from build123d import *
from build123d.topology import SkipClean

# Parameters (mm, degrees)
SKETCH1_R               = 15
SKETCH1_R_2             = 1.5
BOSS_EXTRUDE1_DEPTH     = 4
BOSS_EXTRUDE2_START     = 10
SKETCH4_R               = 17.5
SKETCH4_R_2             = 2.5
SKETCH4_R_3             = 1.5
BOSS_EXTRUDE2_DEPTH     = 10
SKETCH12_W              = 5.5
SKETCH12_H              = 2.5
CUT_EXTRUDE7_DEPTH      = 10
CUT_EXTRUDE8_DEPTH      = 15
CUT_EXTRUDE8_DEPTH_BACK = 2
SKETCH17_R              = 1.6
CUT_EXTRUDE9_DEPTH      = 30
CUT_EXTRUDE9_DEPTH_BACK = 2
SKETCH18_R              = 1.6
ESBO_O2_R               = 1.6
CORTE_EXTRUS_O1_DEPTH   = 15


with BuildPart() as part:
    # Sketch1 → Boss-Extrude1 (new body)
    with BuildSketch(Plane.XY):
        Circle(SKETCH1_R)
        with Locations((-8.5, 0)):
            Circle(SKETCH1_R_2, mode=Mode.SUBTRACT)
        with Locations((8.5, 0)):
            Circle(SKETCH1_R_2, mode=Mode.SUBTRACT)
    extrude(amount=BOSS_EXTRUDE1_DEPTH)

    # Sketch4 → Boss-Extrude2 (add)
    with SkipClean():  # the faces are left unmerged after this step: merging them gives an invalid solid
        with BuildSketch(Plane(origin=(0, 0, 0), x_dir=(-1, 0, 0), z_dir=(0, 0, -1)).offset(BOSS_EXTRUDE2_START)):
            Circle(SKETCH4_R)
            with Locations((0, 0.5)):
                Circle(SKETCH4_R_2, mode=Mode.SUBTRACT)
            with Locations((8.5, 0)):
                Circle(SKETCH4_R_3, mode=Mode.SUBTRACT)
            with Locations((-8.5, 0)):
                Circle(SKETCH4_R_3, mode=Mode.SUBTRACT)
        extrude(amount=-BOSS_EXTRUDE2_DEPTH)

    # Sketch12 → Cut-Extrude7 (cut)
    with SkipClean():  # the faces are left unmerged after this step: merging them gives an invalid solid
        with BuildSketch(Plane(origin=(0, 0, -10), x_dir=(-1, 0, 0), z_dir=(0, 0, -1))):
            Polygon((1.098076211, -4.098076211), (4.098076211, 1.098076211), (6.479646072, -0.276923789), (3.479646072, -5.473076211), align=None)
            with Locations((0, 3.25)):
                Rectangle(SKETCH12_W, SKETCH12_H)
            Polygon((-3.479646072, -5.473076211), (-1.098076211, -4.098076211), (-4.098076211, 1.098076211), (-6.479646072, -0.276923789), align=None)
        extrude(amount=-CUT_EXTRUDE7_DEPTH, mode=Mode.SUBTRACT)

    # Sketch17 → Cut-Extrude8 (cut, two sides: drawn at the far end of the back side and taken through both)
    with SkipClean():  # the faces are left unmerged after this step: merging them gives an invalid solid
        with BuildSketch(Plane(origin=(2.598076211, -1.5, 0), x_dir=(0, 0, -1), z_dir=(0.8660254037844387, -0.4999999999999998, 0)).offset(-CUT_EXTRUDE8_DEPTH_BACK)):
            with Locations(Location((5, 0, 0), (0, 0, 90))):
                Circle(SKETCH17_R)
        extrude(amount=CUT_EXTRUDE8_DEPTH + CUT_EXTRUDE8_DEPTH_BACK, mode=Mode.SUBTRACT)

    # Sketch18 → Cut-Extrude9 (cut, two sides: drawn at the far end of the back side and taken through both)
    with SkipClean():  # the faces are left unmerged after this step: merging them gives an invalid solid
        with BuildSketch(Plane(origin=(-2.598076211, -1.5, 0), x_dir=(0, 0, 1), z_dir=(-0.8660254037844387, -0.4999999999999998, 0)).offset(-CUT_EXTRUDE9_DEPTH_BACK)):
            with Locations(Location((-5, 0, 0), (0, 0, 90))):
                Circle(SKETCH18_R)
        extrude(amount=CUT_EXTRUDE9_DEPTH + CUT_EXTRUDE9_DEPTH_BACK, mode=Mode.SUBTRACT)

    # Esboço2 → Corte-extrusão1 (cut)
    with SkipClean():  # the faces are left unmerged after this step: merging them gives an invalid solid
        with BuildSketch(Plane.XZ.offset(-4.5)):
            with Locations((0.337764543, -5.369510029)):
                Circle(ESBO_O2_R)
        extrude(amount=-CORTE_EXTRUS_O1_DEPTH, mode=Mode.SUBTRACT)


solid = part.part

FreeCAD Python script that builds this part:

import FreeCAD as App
import Part
import Sketcher

V = App.Vector
Q = App.Units.Quantity

doc = App.newDocument("Part")
body = doc.addObject("PartDesign::Body", "Body")

# Sketch on XY plane
sketch1 = body.newObject("Sketcher::SketchObject", "Sketch")
sketch1.AttachmentSupport = (doc.getObject("XY_Plane"), [""])
sketch1.MapMode = "FlatFace"
sketch1.addGeometry(Part.Circle(V(0, 0, 0), V(0, 0, 1), 15), False)
sketch1.addGeometry(Part.Circle(V(-8.5, 0, 0), V(0, 0, 1), 1.5), False)
sketch1.addGeometry(Part.Circle(V(8.5, 0, 0), V(0, 0, 1), 1.5), False)
sketch1.addConstraint(Sketcher.Constraint("Coincident", 0, 3, -1, 1))
sketch1.addConstraint(Sketcher.Constraint("Equal", 1, 2))
sketch1.addConstraint(Sketcher.Constraint("Symmetric", 1, 3, 2, 3, -1, 1))
sketch1.addConstraint(Sketcher.Constraint("PointOnObject", 1, 3, -1))
sketch1.addConstraint(Sketcher.Constraint("Diameter", 0, 30.0))
sketch1.addConstraint(Sketcher.Constraint("Diameter", 1, 3.0))
sketch1.addConstraint(Sketcher.Constraint("DistanceX", 1, 3, 2, 3, 17.0))
pad1 = body.newObject("PartDesign::Pad", "Pad")
pad1.Profile = sketch1
pad1.Length = 4

# Sketch on XY plane
sketch2 = body.newObject("Sketcher::SketchObject", "Sketch001")
sketch2.AttachmentSupport = (doc.getObject("XY_Plane"), [""])
sketch2.MapMode = "FlatFace"
sketch2.AttachmentOffset = App.Placement(V(0, 0, -10), App.Rotation())
sketch2.addGeometry(Part.Circle(V(0, 0, 0), V(0, 0, 1), 17.5), False)
sketch2.addGeometry(Part.Circle(V(8.5, 0, 0), V(0, 0, 1), 1.5), False)
sketch2.addGeometry(Part.Circle(V(-8.5, 0, 0), V(0, 0, 1), 1.5), False)
sketch2.addGeometry(Part.Circle(V(0, 0.5, 0), V(0, 0, 1), 2.5), False)
sketch2.addConstraint(Sketcher.Constraint("Coincident", 0, 3, -1, 1))
sketch2.addConstraint(Sketcher.Constraint("Equal", 1, 2))
sketch2.addConstraint(Sketcher.Constraint("Symmetric", 1, 3, 2, 3, -1, 1))
sketch2.addConstraint(Sketcher.Constraint("PointOnObject", 1, 3, -1))
sketch2.addConstraint(Sketcher.Constraint("PointOnObject", 3, 3, -2))
sketch2.addConstraint(Sketcher.Constraint("Diameter", 0, 35.0))
sketch2.addConstraint(Sketcher.Constraint("Diameter", 1, 3.0))
sketch2.addConstraint(Sketcher.Constraint("Diameter", 3, 5.0))
sketch2.addConstraint(Sketcher.Constraint("DistanceX", 2, 3, 1, 3, 17.0))
sketch2.addConstraint(Sketcher.Constraint("DistanceY", -1, 1, 3, 3, 0.5))
pad2 = body.newObject("PartDesign::Pad", "Pad001")
pad2.Profile = sketch2
pad2.Length = 10

# Sketch on XY plane
sketch3 = body.newObject("Sketcher::SketchObject", "Sketch002")
sketch3.AttachmentSupport = (doc.getObject("XY_Plane"), [""])
sketch3.MapMode = "FlatFace"
sketch3.AttachmentOffset = App.Placement(V(0, 0, -10), App.Rotation())
sketch3.addGeometry(Part.LineSegment(V(-4.098076, 1.098076, 0), V(-1.098076, -4.098076, 0)), False)
sketch3.addGeometry(Part.LineSegment(V(-1.098076, -4.098076, 0), V(-3.479646, -5.473076, 0)), False)
sketch3.addGeometry(Part.LineSegment(V(-3.479646, -5.473076, 0), V(-6.479646, -0.276924, 0)), False)
sketch3.addGeometry(Part.LineSegment(V(-6.479646, -0.276924, 0), V(-4.098076, 1.098076, 0)), False)
sketch3.addGeometry(Part.LineSegment(V(2.75, 4.5, 0), V(2.75, 2, 0)), False)
sketch3.addGeometry(Part.LineSegment(V(2.75, 2, 0), V(-2.75, 2, 0)), False)
sketch3.addGeometry(Part.LineSegment(V(-2.75, 2, 0), V(-2.75, 4.5, 0)), False)
sketch3.addGeometry(Part.LineSegment(V(-2.75, 4.5, 0), V(2.75, 4.5, 0)), False)
sketch3.addGeometry(Part.LineSegment(V(3.479646, -5.473076, 0), V(1.098076, -4.098076, 0)), False)
sketch3.addGeometry(Part.LineSegment(V(1.098076, -4.098076, 0), V(4.098076, 1.098076, 0)), False)
sketch3.addGeometry(Part.LineSegment(V(4.098076, 1.098076, 0), V(6.479646, -0.276924, 0)), False)
sketch3.addGeometry(Part.LineSegment(V(6.479646, -0.276924, 0), V(3.479646, -5.473076, 0)), False)
sketch3.addConstraint(Sketcher.Constraint("Coincident", 0, 2, 1, 1))
sketch3.addConstraint(Sketcher.Constraint("Coincident", 1, 2, 2, 1))
sketch3.addConstraint(Sketcher.Constraint("Coincident", 2, 2, 3, 1))
sketch3.addConstraint(Sketcher.Constraint("Coincident", 3, 2, 0, 1))
sketch3.addConstraint(Sketcher.Constraint("Coincident", 4, 2, 5, 1))
sketch3.addConstraint(Sketcher.Constraint("Coincident", 5, 2, 6, 1))
sketch3.addConstraint(Sketcher.Constraint("Coincident", 6, 2, 7, 1))
sketch3.addConstraint(Sketcher.Constraint("Coincident", 7, 2, 4, 1))
sketch3.addConstraint(Sketcher.Constraint("Coincident", 8, 2, 9, 1))
sketch3.addConstraint(Sketcher.Constraint("Coincident", 9, 2, 10, 1))
sketch3.addConstraint(Sketcher.Constraint("Coincident", 10, 2, 11, 1))
sketch3.addConstraint(Sketcher.Constraint("Coincident", 11, 2, 8, 1))
sketch3.addConstraint(Sketcher.Constraint("Vertical", 4))
sketch3.addConstraint(Sketcher.Constraint("Horizontal", 5))
sketch3.addConstraint(Sketcher.Constraint("Vertical", 6))
sketch3.addConstraint(Sketcher.Constraint("Horizontal", 7))
sketch3.addConstraint(Sketcher.Constraint("Symmetric", 0, 2, 8, 2, -2))
sketch3.addConstraint(Sketcher.Constraint("Symmetric", 3, 2, 9, 2, -2))
sketch3.addConstraint(Sketcher.Constraint("Symmetric", 2, 2, 10, 2, -2))
sketch3.addConstraint(Sketcher.Constraint("Symmetric", 1, 2, 11, 2, -2))
sketch3.addConstraint(Sketcher.Constraint("Perpendicular", 0, 1))
sketch3.addConstraint(Sketcher.Constraint("Perpendicular", 1, 2))
sketch3.addConstraint(Sketcher.Constraint("Perpendicular", 2, 3))
sketch3.addConstraint(Sketcher.Constraint("Angle", 0, Q("-60 deg")))
sketch3.addConstraint(Sketcher.Constraint("Distance", 0, 6.0))
sketch3.addConstraint(Sketcher.Constraint("DistanceX", 5, 2, 5, 1, 5.5))
sketch3.addConstraint(Sketcher.Constraint("DistanceY", 4, 2, 4, 1, 2.5))
sketch3.addConstraint(Sketcher.Constraint("DistanceY", -1, 1, 4, 2, 2.0))
sketch3.addConstraint(Sketcher.Constraint("Distance", 1, 2.75))
sketch3.addConstraint(Sketcher.Constraint("DistanceX", -1, 1, 4, 2, 2.75))
sketch3.addConstraint(Sketcher.Constraint("DistanceX", 0, 2, -1, 1, 1.098076))
sketch3.addConstraint(Sketcher.Constraint("DistanceY", 0, 2, -1, 1, 4.098076))
pocket1 = body.newObject("PartDesign::Pocket", "Pocket")
pocket1.Profile = sketch3
pocket1.Length = 10
pocket1.Reversed = True

# Sketch on an angled plane
sketch4 = body.newObject("Sketcher::SketchObject", "Sketch003")
sketch4.Placement = App.Placement(V(2.598076, -1.5, 0), App.Rotation(V(0, 0, -1), V(0.5, 0.866025404, 0), V(0.866025404, -0.5, 0), "ZXY"))
sketch4.addGeometry(Part.Circle(V(5, 0, 0), V(0, 0, 1), 1.6), False)
sketch4.addConstraint(Sketcher.Constraint("PointOnObject", 0, 3, -1))
sketch4.addConstraint(Sketcher.Constraint("Diameter", 0, 3.2))
sketch4.addConstraint(Sketcher.Constraint("DistanceX", -1, 1, 0, 3, 5.0))
pocket2 = body.newObject("PartDesign::Pocket", "Pocket001")
pocket2.Profile = sketch4
pocket2.Type = "TwoLengths"
pocket2.Length = 15
pocket2.Length2 = 2
pocket2.Reversed = True

# Sketch on an angled plane
sketch5 = body.newObject("Sketcher::SketchObject", "Sketch004")
sketch5.Placement = App.Placement(V(-2.598076, -1.5, 0), App.Rotation(V(0, 0, 1), V(-0.5, 0.866025404, 0), V(-0.866025404, -0.5, 0), "ZXY"))
sketch5.addGeometry(Part.Circle(V(-5, 0, 0), V(0, 0, 1), 1.6), False)
sketch5.addConstraint(Sketcher.Constraint("PointOnObject", 0, 3, -1))
sketch5.addConstraint(Sketcher.Constraint("Diameter", 0, 3.2))
sketch5.addConstraint(Sketcher.Constraint("DistanceX", 0, 3, -1, 1, 5.0))
pocket3 = body.newObject("PartDesign::Pocket", "Pocket002")
pocket3.Profile = sketch5
pocket3.Type = "TwoLengths"
pocket3.Length = 30
pocket3.Length2 = 2
pocket3.Reversed = True

# Sketch on XZ plane
sketch6 = body.newObject("Sketcher::SketchObject", "Sketch005")
sketch6.AttachmentSupport = (doc.getObject("XZ_Plane"), [""])
sketch6.MapMode = "FlatFace"
sketch6.AttachmentOffset = App.Placement(V(0, 0, -4.5), App.Rotation())
sketch6.addGeometry(Part.Circle(V(0.337765, -5.36951, 0), V(0, 0, 1), 1.6), False)
sketch6.addConstraint(Sketcher.Constraint("Diameter", 0, 3.2))
sketch6.addConstraint(Sketcher.Constraint("DistanceY", 0, 3, -1, 1, 5.36951))
sketch6.addConstraint(Sketcher.Constraint("DistanceX", -1, 1, 0, 3, 0.337765))
pocket4 = body.newObject("PartDesign::Pocket", "Pocket003")
pocket4.Profile = sketch6
pocket4.Length = 15

doc.recompute()
